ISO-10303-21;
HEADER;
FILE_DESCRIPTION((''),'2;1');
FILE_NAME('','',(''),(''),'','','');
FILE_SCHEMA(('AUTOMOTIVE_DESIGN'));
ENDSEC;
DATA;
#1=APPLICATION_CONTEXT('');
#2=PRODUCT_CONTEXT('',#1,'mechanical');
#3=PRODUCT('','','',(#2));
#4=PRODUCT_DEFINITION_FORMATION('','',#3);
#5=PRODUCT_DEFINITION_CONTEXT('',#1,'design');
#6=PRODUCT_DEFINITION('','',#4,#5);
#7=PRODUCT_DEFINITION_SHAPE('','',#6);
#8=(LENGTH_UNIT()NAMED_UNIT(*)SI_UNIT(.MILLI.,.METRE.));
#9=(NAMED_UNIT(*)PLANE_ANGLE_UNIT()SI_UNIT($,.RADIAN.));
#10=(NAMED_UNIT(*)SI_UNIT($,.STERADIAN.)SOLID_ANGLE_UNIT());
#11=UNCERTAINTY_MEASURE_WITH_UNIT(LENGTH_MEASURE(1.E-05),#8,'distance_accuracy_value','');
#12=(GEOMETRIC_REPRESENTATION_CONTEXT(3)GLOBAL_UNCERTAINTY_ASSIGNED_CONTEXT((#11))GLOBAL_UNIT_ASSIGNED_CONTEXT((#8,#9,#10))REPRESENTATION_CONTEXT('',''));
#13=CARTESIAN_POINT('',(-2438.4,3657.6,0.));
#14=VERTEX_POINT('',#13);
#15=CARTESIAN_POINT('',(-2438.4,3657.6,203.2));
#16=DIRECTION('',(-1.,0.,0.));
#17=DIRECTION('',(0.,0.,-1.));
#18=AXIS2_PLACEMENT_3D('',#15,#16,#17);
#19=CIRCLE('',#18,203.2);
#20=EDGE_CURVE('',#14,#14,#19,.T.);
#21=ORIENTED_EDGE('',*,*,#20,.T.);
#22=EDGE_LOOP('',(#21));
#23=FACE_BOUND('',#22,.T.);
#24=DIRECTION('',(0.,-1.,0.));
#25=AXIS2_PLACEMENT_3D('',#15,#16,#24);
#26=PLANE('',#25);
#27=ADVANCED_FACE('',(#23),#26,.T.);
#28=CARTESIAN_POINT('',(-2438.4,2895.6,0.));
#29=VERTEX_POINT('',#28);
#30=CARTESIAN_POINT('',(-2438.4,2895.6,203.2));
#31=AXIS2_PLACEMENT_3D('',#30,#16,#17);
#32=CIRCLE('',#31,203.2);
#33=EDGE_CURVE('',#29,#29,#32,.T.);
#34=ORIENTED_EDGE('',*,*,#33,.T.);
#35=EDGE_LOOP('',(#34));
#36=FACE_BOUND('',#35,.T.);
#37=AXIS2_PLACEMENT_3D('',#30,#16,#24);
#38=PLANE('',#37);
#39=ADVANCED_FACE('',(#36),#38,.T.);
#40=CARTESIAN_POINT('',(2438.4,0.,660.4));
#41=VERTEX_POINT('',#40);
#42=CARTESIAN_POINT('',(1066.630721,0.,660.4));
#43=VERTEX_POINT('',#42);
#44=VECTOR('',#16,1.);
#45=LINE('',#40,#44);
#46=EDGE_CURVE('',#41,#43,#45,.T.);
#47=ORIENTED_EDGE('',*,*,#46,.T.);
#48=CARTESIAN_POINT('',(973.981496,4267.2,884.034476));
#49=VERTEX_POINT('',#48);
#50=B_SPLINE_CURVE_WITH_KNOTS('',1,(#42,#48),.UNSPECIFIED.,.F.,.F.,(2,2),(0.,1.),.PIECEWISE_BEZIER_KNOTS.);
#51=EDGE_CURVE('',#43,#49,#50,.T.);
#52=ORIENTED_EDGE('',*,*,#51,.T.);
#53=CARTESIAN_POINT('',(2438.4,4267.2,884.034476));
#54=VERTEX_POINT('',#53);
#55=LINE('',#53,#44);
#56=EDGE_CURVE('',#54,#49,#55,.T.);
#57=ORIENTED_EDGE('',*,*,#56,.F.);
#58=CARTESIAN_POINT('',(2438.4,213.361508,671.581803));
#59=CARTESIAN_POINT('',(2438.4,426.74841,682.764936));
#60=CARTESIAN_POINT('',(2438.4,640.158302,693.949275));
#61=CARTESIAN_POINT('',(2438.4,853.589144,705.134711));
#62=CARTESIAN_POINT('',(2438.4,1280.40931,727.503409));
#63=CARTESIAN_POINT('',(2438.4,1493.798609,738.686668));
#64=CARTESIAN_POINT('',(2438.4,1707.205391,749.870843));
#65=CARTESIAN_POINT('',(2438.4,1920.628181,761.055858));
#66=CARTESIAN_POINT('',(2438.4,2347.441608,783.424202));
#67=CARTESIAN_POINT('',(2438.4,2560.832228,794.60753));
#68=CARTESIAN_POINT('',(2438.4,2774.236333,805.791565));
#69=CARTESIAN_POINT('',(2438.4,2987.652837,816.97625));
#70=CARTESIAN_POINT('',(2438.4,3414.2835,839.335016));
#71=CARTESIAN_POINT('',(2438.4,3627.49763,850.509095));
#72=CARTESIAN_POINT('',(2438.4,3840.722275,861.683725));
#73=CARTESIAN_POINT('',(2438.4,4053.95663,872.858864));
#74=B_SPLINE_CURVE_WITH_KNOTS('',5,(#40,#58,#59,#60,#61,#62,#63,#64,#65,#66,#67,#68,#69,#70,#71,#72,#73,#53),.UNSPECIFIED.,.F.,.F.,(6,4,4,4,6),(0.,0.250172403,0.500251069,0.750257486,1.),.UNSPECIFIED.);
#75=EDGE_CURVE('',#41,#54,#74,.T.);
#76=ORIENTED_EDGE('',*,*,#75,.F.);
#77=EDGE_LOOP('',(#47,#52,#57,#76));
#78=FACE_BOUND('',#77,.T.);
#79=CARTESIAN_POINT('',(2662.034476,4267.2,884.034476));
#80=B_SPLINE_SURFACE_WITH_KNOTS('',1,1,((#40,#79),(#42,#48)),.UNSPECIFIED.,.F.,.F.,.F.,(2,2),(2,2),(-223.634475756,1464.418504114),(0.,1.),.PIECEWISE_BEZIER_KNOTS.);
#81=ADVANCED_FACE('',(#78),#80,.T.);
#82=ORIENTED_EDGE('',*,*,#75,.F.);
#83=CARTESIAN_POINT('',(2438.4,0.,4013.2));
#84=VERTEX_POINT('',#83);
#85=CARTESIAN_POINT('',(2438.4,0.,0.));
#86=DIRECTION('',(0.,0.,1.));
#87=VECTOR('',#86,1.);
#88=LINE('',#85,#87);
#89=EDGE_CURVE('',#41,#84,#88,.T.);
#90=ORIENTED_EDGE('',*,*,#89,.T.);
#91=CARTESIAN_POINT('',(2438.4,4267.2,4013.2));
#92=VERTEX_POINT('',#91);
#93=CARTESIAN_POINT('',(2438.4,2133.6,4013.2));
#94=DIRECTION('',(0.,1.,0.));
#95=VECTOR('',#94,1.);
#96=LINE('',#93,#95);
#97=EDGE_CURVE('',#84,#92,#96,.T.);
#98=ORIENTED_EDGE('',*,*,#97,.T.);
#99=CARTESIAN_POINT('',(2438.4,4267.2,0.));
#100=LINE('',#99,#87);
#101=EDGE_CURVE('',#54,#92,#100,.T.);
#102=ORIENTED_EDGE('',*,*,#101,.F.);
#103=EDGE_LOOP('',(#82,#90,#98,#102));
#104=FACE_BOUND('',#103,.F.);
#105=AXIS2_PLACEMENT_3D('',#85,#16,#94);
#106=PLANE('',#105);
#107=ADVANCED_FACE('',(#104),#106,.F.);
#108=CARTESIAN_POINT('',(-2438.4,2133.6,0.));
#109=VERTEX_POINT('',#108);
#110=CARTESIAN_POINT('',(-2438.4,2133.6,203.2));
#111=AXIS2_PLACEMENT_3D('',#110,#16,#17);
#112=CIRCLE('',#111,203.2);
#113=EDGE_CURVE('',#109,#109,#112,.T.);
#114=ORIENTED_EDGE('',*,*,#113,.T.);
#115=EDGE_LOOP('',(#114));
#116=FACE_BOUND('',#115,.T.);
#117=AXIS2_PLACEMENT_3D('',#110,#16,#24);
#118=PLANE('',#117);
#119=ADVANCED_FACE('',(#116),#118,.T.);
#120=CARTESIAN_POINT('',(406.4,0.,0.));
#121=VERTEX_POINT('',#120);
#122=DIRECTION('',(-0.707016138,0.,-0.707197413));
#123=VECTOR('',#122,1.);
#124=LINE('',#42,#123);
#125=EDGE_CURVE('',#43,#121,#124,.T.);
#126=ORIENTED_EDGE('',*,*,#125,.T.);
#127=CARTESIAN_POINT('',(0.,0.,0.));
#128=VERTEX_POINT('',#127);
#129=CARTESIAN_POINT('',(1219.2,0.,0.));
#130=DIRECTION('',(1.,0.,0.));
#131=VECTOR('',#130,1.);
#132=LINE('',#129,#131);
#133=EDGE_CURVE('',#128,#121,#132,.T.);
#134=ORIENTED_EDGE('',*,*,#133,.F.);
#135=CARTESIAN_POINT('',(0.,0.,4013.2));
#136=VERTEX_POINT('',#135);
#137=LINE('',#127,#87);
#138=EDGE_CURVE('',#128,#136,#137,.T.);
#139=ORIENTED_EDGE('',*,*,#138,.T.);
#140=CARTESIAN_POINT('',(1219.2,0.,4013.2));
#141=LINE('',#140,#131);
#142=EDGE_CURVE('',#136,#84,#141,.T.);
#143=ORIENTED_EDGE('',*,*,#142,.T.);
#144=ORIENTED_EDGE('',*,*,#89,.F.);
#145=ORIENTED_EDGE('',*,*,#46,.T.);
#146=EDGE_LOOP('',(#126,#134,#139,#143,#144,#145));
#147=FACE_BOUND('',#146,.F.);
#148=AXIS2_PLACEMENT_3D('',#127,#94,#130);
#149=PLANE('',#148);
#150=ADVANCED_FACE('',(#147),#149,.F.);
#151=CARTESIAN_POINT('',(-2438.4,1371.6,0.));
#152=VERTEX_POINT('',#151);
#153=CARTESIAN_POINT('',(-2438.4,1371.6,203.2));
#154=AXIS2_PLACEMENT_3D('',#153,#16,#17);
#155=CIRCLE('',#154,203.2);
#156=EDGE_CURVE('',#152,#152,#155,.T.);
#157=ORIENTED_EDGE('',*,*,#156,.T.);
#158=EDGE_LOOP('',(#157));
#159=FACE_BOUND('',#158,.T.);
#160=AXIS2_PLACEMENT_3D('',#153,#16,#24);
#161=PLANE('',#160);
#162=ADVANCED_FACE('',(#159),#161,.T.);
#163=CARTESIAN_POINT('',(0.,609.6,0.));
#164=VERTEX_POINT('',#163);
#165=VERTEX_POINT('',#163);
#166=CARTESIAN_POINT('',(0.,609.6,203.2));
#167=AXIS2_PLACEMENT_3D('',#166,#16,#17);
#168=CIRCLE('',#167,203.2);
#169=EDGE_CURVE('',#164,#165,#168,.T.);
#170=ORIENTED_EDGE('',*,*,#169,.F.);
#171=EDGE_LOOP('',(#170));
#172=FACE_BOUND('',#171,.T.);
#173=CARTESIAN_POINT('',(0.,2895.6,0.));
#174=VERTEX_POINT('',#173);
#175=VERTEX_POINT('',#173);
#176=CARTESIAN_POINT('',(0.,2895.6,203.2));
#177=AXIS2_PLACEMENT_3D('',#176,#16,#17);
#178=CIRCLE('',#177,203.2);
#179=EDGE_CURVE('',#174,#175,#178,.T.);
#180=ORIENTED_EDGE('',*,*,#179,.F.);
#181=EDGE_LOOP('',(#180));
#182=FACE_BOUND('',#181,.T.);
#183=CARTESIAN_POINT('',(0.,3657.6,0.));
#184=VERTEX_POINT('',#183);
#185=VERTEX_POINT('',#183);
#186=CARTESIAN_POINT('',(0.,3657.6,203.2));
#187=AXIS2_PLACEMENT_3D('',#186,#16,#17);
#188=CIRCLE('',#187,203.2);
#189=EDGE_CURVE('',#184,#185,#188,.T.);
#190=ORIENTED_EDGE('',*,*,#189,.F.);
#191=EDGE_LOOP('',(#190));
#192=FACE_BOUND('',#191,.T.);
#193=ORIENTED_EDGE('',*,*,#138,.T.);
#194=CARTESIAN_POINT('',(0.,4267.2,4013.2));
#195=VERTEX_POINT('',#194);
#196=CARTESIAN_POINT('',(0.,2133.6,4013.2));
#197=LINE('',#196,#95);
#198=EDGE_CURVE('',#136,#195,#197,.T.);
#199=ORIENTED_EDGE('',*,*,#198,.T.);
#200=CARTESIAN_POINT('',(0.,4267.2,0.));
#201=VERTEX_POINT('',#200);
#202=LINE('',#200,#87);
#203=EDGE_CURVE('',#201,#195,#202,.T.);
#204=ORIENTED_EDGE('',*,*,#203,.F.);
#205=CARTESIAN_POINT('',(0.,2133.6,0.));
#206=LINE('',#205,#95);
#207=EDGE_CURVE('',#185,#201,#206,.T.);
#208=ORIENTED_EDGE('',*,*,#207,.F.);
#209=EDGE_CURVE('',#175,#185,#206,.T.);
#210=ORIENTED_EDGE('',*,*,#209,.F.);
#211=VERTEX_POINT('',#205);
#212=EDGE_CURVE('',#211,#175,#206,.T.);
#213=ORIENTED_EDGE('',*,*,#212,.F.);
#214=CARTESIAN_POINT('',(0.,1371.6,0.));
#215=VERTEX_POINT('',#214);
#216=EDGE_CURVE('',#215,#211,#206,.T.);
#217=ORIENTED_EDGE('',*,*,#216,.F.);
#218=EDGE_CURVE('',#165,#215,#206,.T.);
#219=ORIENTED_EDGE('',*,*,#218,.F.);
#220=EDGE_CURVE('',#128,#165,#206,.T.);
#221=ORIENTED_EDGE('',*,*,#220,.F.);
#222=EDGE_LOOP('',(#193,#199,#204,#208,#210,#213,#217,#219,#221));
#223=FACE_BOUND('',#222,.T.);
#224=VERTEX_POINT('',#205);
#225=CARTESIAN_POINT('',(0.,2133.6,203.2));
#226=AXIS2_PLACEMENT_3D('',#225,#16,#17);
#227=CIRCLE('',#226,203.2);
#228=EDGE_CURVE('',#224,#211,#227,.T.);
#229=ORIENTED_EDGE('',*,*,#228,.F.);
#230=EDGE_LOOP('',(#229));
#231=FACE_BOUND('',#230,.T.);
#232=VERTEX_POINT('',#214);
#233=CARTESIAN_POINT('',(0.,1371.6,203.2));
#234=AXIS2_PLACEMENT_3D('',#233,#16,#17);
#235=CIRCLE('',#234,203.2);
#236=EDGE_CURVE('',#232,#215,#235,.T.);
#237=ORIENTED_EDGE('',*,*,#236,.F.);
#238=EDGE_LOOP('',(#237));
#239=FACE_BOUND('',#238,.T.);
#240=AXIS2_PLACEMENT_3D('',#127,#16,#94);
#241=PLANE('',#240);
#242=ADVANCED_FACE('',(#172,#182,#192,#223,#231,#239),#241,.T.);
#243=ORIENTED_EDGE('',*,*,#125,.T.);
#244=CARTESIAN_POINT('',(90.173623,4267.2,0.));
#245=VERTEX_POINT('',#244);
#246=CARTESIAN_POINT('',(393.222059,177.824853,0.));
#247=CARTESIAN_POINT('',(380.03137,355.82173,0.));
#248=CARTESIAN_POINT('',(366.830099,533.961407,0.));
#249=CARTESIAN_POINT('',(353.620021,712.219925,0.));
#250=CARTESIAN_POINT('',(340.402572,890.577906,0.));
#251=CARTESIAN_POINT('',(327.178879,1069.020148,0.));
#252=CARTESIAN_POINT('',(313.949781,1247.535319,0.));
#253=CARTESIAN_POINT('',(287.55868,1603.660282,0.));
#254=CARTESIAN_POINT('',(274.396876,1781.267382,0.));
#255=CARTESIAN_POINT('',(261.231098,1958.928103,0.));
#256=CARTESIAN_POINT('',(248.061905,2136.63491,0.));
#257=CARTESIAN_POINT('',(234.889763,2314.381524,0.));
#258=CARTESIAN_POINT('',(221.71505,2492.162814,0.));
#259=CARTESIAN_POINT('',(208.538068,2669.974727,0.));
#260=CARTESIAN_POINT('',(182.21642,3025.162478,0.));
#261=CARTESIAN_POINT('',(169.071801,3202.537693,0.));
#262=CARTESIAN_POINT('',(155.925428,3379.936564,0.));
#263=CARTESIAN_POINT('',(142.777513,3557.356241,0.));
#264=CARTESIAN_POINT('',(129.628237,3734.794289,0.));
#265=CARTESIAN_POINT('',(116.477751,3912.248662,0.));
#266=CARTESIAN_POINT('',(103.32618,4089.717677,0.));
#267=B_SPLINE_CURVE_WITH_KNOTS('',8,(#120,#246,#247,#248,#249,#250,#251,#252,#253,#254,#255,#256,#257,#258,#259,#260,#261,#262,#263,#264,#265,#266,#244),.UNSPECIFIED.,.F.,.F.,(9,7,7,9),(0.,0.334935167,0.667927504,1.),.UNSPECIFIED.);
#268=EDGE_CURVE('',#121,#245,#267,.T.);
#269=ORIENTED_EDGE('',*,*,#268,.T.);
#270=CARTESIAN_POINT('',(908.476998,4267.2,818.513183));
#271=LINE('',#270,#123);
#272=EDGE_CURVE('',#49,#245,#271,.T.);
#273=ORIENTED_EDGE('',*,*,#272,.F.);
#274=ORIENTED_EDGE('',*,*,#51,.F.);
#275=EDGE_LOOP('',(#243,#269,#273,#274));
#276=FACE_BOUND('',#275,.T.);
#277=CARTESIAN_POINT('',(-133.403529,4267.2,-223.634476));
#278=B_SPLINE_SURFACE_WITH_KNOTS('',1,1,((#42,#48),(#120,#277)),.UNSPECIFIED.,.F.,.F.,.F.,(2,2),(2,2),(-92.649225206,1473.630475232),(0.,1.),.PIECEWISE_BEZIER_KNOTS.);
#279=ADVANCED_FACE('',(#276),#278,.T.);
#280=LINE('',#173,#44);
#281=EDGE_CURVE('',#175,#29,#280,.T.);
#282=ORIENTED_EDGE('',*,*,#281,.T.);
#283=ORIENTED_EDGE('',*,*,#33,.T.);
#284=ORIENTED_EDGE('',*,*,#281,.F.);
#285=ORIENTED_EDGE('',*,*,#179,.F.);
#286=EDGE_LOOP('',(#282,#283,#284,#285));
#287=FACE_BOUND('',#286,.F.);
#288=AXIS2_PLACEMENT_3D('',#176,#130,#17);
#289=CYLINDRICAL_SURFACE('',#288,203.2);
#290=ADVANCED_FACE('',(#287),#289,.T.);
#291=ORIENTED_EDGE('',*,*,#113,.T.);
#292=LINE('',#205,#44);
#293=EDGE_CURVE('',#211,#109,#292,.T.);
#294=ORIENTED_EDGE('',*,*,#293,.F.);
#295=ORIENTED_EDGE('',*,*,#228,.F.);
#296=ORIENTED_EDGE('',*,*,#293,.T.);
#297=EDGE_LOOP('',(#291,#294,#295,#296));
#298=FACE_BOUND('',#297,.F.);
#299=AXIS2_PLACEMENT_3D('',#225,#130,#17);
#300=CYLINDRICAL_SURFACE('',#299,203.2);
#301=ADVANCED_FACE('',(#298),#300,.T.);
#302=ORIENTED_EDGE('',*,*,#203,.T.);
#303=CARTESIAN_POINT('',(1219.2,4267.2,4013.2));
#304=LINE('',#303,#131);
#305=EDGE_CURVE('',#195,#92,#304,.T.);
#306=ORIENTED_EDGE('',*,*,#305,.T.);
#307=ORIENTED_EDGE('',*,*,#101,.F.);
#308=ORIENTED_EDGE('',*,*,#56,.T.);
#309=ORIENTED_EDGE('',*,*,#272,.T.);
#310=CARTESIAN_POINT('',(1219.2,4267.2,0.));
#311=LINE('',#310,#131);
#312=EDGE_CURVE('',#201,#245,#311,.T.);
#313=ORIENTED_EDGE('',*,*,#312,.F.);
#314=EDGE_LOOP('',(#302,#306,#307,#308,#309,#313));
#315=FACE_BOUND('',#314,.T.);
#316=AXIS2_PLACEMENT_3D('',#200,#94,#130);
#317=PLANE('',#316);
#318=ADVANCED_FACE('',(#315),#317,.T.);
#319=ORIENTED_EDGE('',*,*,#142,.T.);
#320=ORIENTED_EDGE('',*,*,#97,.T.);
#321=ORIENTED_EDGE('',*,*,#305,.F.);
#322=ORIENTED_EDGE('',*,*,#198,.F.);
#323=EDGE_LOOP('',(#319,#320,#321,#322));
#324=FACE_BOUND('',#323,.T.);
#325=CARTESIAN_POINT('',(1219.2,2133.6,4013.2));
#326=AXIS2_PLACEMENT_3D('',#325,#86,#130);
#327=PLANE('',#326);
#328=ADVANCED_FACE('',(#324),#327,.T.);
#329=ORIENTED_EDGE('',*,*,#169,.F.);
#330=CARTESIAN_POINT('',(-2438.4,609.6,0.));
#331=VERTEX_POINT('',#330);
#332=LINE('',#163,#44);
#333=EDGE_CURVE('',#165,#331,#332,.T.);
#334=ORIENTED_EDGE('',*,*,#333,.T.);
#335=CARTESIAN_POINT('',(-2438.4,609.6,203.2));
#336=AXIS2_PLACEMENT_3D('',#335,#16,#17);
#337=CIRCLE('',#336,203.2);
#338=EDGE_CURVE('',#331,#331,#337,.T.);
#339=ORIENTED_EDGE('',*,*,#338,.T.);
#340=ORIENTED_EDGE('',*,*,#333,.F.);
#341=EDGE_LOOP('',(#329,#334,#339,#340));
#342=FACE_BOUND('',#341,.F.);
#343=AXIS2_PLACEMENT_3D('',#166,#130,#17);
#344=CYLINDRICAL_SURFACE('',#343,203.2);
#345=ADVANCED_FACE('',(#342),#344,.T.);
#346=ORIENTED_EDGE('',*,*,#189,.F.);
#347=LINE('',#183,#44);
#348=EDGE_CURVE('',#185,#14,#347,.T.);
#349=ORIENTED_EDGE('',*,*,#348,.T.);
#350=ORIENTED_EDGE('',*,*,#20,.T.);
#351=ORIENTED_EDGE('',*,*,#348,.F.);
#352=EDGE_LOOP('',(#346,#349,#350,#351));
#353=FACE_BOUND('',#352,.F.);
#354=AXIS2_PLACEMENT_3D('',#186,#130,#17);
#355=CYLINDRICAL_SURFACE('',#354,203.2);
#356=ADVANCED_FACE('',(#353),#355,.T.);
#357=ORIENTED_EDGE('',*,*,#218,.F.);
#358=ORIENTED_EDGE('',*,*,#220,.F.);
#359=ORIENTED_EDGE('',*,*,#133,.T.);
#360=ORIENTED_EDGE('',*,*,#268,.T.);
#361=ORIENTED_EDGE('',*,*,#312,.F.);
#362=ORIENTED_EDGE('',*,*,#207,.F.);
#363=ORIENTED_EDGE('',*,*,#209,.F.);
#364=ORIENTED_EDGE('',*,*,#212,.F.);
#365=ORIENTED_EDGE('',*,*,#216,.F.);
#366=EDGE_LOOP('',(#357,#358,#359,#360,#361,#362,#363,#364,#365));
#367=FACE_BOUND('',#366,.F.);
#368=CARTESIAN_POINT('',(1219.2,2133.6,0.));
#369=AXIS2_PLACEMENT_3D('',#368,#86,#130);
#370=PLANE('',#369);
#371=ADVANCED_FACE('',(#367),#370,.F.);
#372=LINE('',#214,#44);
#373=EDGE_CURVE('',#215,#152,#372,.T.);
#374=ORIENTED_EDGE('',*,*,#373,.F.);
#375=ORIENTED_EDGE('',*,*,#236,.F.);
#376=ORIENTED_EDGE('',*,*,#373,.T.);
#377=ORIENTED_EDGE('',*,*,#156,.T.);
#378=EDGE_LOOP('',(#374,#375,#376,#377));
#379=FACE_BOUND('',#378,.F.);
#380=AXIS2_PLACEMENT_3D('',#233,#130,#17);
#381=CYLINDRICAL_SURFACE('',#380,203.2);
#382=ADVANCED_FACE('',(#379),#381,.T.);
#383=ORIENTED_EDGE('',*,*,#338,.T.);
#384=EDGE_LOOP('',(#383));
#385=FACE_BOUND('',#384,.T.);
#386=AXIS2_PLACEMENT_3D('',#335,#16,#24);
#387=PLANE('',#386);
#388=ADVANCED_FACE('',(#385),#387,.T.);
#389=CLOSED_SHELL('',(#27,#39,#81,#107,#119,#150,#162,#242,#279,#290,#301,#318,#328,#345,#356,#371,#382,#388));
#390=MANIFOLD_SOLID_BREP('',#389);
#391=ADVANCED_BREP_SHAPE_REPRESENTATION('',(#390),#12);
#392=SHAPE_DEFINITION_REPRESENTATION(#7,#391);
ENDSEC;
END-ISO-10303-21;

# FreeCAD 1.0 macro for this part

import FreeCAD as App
import Part
import Sketcher
Q = App.Units.Quantity

doc = App.newDocument("Part")
body = doc.addObject("PartDesign::Body", "Body")

sketch1 = body.newObject("Sketcher::SketchObject", "Sketch")
sketch1.AttachmentSupport = (doc.getObject("XY_Plane"), [""])
sketch1.MapMode = "FlatFace"
sketch1.addGeometry(Part.LineSegment(App.Vector(0, 4267, 0), App.Vector(0, 0, 0)), False)
sketch1.addGeometry(Part.LineSegment(App.Vector(0, 0, 0), App.Vector(2438, 0, 0)), False)
sketch1.addGeometry(Part.LineSegment(App.Vector(2438, 0, 0), App.Vector(2438, 4267, 0)), False)
sketch1.addGeometry(Part.LineSegment(App.Vector(2438, 4267, 0), App.Vector(0, 4267, 0)), False)
sketch1.addConstraint(Sketcher.Constraint("Coincident", 0, 2, 1, 1))
sketch1.addConstraint(Sketcher.Constraint("Coincident", 1, 2, 2, 1))
sketch1.addConstraint(Sketcher.Constraint("Coincident", 2, 2, 3, 1))
sketch1.addConstraint(Sketcher.Constraint("Coincident", 3, 2, 0, 1))
sketch1.addConstraint(Sketcher.Constraint("Vertical", 0))
sketch1.addConstraint(Sketcher.Constraint("Horizontal", 1))
sketch1.addConstraint(Sketcher.Constraint("Vertical", 2))
sketch1.addConstraint(Sketcher.Constraint("Horizontal", 3))
sketch1.addConstraint(Sketcher.Constraint("Coincident", 0, 2, -1, 1))
sketch1.addConstraint(Sketcher.Constraint("DistanceX", 1, 1, 1, 2, Q("96 in")))
sketch1.addConstraint(Sketcher.Constraint("DistanceY", 0, 2, 0, 1, Q("168 in")))
pad1 = body.newObject("PartDesign::Pad", "Pad")
pad1.Profile = sketch1
pad1.Length = Q("158 in")

sketch2 = body.newObject("Sketcher::SketchObject", "Sketch001")
sketch2.AttachmentSupport = (doc.getObject("XZ_Plane"), [""])
sketch2.MapMode = "FlatFace"
sketch2.addGeometry(Part.LineSegment(App.Vector(406, 0, 0), App.Vector(2438, 0, 0)), False)
sketch2.addGeometry(Part.LineSegment(App.Vector(2438, 0, 0), App.Vector(2438, 660, 0)), False)
sketch2.addGeometry(Part.LineSegment(App.Vector(2438, 660, 0), App.Vector(1067, 660, 0)), False)
sketch2.addGeometry(Part.LineSegment(App.Vector(1067, 660, 0), App.Vector(406, 0, 0)), False)
sketch2.addConstraint(Sketcher.Constraint("Coincident", 0, 2, 1, 1))
sketch2.addConstraint(Sketcher.Constraint("Coincident", 1, 2, 2, 1))
sketch2.addConstraint(Sketcher.Constraint("Coincident", 2, 2, 3, 1))
sketch2.addConstraint(Sketcher.Constraint("Coincident", 3, 2, 0, 1))
sketch2.addConstraint(Sketcher.Constraint("Horizontal", 0))
sketch2.addConstraint(Sketcher.Constraint("Vertical", 1))
sketch2.addConstraint(Sketcher.Constraint("Horizontal", 2))
sketch2.addConstraint(Sketcher.Constraint("PointOnObject", 0, 2, -1))
sketch2.addConstraint(Sketcher.Constraint("DistanceX", 0, 1, 0, 2, Q("80 in")))
sketch2.addConstraint(Sketcher.Constraint("DistanceY", 1, 1, 1, 2, Q("26 in")))
sketch2.addConstraint(Sketcher.Constraint("DistanceX", -1, 1, 0, 2, Q("96 in")))
sketch2.addConstraint(Sketcher.Constraint("DistanceX", 2, 2, 2, 1, Q("1371.769279 mm")))
pocket1 = body.newObject("PartDesign::Pocket", "Pocket")
pocket1.Profile = sketch2
pocket1.Length = Q("168 in")
pocket1.TaperAngle = 3

sketch3 = body.newObject("Sketcher::SketchObject", "Sketch002")
sketch3.AttachmentSupport = (doc.getObject("YZ_Plane"), [""])
sketch3.MapMode = "FlatFace"
sketch3.addGeometry(Part.Circle(App.Vector(2896, 203, 0), App.Vector(0, 0, 1), 203), False)
sketch3.addGeometry(Part.Circle(App.Vector(2134, 203, 0), App.Vector(0, 0, 1), 203), False)
sketch3.addGeometry(Part.Circle(App.Vector(1372, 203, 0), App.Vector(0, 0, 1), 203), False)
sketch3.addGeometry(Part.Circle(App.Vector(610, 203, 0), App.Vector(0, 0, 1), 203), False)
sketch3.addGeometry(Part.Circle(App.Vector(3658, 203, 0), App.Vector(0, 0, 1), 203), False)
sketch3.addConstraint(Sketcher.Constraint("Equal", 0, 1))
sketch3.addConstraint(Sketcher.Constraint("Equal", 1, 2))
sketch3.addConstraint(Sketcher.Constraint("Equal", 2, 3))
sketch3.addConstraint(Sketcher.Constraint("Equal", 3, 4))
sketch3.addConstraint(Sketcher.Constraint("Horizontal", 0, 3, 1, 3))
sketch3.addConstraint(Sketcher.Constraint("Horizontal", 1, 3, 2, 3))
sketch3.addConstraint(Sketcher.Constraint("Horizontal", 2, 3, 3, 3))
sketch3.addConstraint(Sketcher.Constraint("Horizontal", 3, 3, 4, 3))
sketch3.addConstraint(Sketcher.Constraint("Diameter", 0, Q("16 in")))
sketch3.addConstraint(Sketcher.Constraint("DistanceX", -1, 1, 0, 3, Q("114 in")))
sketch3.addConstraint(Sketcher.Constraint("DistanceY", -1, 1, 0, 3, Q("8 in")))
sketch3.addConstraint(Sketcher.Constraint("DistanceX", -1, 1, 1, 3, Q("84 in")))
sketch3.addConstraint(Sketcher.Constraint("DistanceX", -1, 1, 2, 3, Q("54 in")))
sketch3.addConstraint(Sketcher.Constraint("DistanceX", -1, 1, 3, 3, Q("24 in")))
sketch3.addConstraint(Sketcher.Constraint("DistanceX", -1, 1, 4, 3, Q("144 in")))
pad2 = body.newObject("PartDesign::Pad", "Pad001")
pad2.Profile = sketch3
pad2.Length = Q("96 in")
pad2.Reversed = True

doc.recompute()
